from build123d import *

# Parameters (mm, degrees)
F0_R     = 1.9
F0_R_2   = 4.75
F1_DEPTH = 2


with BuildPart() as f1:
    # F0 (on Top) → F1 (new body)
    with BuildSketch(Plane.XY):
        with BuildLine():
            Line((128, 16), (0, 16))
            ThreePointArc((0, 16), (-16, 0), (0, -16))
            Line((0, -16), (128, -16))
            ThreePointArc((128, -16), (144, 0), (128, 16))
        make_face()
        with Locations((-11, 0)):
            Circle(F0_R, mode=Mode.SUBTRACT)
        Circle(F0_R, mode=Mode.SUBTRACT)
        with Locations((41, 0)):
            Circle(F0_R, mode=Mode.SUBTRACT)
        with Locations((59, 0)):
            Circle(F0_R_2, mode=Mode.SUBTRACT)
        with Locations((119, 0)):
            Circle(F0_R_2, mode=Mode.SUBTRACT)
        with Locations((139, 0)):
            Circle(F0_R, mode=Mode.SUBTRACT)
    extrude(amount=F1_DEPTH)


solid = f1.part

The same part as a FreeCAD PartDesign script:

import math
import FreeCAD as App
import Part
import Sketcher
Q = App.Units.Quantity

doc = App.newDocument("Part")
body = doc.addObject("PartDesign::Body", "Body")

# Sketch on XY plane
sketch1 = doc.addObject("Sketcher::SketchObject", "Sketch")
body.addObject(sketch1)
sketch1.AttachmentSupport = (doc.XY_Plane, [""])
sketch1.MapMode = "FlatFace"
sketch1.addGeometry([
    Part.LineSegment(App.Vector(128, 16, 0), App.Vector(0, 16, 0)),  # 0
    Part.ArcOfCircle(Part.Circle(App.Vector(0, 0, 0), App.Vector(0, 0, 1), 16), math.radians(90), math.radians(270)),  # 1
    Part.LineSegment(App.Vector(0, -16, 0), App.Vector(128, -16, 0)),  # 2
    Part.ArcOfCircle(Part.Circle(App.Vector(128, 0, 0), App.Vector(0, 0, 1), 16), math.radians(-90), math.radians(90)),  # 3
    Part.Circle(App.Vector(-11, 0, 0), App.Vector(0, 0, 1), 1.9),  # 4
    Part.Circle(App.Vector(0, 0, 0), App.Vector(0, 0, 1), 1.9),  # 5
    Part.Circle(App.Vector(41, 0, 0), App.Vector(0, 0, 1), 1.9),  # 6
    Part.Circle(App.Vector(59, 0, 0), App.Vector(0, 0, 1), 4.8),  # 7
    Part.Circle(App.Vector(119, 0, 0), App.Vector(0, 0, 1), 4.8),  # 8
    Part.Circle(App.Vector(139, 0, 0), App.Vector(0, 0, 1), 1.9),  # 9
], False)
sketch1.addConstraint([
    Sketcher.Constraint("Tangent", 0, 2, 1, 1),
    Sketcher.Constraint("Tangent", 1, 2, 2, 1),
    Sketcher.Constraint("Tangent", 2, 2, 3, 1),
    Sketcher.Constraint("Tangent", 3, 2, 0, 1),
    Sketcher.Constraint("Horizontal", 0),
    Sketcher.Constraint("Horizontal", 2),
    Sketcher.Constraint("Coincident", 1, 3, -1, 1),
    Sketcher.Constraint("Coincident", 5, 3, -1, 1),
    Sketcher.Constraint("Equal", 4, 5),
    Sketcher.Constraint("Equal", 5, 6),
    Sketcher.Constraint("Equal", 7, 8),
    Sketcher.Constraint("Equal", 6, 9),
    Sketcher.Constraint("PointOnObject", 4, 3, -1),
    Sketcher.Constraint("PointOnObject", 6, 3, -1),
    Sketcher.Constraint("PointOnObject", 7, 3, -1),
    Sketcher.Constraint("PointOnObject", 8, 3, -1),
    Sketcher.Constraint("PointOnObject", 9, 3, -1),
    Sketcher.Constraint("Radius", 1, Q("16 mm")),
    Sketcher.Constraint("Diameter", 4, Q("3.8 mm")),
    Sketcher.Constraint("Diameter", 7, Q("9.5 mm")),
    Sketcher.Constraint("DistanceX", 0, 2, 0, 1, Q("128 mm")),
    Sketcher.Constraint("DistanceX", 4, 3, -1, 1, Q("11 mm")),
    Sketcher.Constraint("DistanceX", -1, 1, 6, 3, Q("41 mm")),
    Sketcher.Constraint("DistanceX", -1, 1, 7, 3, Q("59 mm")),
    Sketcher.Constraint("DistanceX", -1, 1, 8, 3, Q("119 mm")),
    Sketcher.Constraint("DistanceX", -1, 1, 9, 3, Q("139 mm")),
])
pad1 = doc.addObject("PartDesign::Pad", "Pad")
body.addObject(pad1)
pad1.Profile = sketch1
pad1.Length = 2

doc.recompute()
